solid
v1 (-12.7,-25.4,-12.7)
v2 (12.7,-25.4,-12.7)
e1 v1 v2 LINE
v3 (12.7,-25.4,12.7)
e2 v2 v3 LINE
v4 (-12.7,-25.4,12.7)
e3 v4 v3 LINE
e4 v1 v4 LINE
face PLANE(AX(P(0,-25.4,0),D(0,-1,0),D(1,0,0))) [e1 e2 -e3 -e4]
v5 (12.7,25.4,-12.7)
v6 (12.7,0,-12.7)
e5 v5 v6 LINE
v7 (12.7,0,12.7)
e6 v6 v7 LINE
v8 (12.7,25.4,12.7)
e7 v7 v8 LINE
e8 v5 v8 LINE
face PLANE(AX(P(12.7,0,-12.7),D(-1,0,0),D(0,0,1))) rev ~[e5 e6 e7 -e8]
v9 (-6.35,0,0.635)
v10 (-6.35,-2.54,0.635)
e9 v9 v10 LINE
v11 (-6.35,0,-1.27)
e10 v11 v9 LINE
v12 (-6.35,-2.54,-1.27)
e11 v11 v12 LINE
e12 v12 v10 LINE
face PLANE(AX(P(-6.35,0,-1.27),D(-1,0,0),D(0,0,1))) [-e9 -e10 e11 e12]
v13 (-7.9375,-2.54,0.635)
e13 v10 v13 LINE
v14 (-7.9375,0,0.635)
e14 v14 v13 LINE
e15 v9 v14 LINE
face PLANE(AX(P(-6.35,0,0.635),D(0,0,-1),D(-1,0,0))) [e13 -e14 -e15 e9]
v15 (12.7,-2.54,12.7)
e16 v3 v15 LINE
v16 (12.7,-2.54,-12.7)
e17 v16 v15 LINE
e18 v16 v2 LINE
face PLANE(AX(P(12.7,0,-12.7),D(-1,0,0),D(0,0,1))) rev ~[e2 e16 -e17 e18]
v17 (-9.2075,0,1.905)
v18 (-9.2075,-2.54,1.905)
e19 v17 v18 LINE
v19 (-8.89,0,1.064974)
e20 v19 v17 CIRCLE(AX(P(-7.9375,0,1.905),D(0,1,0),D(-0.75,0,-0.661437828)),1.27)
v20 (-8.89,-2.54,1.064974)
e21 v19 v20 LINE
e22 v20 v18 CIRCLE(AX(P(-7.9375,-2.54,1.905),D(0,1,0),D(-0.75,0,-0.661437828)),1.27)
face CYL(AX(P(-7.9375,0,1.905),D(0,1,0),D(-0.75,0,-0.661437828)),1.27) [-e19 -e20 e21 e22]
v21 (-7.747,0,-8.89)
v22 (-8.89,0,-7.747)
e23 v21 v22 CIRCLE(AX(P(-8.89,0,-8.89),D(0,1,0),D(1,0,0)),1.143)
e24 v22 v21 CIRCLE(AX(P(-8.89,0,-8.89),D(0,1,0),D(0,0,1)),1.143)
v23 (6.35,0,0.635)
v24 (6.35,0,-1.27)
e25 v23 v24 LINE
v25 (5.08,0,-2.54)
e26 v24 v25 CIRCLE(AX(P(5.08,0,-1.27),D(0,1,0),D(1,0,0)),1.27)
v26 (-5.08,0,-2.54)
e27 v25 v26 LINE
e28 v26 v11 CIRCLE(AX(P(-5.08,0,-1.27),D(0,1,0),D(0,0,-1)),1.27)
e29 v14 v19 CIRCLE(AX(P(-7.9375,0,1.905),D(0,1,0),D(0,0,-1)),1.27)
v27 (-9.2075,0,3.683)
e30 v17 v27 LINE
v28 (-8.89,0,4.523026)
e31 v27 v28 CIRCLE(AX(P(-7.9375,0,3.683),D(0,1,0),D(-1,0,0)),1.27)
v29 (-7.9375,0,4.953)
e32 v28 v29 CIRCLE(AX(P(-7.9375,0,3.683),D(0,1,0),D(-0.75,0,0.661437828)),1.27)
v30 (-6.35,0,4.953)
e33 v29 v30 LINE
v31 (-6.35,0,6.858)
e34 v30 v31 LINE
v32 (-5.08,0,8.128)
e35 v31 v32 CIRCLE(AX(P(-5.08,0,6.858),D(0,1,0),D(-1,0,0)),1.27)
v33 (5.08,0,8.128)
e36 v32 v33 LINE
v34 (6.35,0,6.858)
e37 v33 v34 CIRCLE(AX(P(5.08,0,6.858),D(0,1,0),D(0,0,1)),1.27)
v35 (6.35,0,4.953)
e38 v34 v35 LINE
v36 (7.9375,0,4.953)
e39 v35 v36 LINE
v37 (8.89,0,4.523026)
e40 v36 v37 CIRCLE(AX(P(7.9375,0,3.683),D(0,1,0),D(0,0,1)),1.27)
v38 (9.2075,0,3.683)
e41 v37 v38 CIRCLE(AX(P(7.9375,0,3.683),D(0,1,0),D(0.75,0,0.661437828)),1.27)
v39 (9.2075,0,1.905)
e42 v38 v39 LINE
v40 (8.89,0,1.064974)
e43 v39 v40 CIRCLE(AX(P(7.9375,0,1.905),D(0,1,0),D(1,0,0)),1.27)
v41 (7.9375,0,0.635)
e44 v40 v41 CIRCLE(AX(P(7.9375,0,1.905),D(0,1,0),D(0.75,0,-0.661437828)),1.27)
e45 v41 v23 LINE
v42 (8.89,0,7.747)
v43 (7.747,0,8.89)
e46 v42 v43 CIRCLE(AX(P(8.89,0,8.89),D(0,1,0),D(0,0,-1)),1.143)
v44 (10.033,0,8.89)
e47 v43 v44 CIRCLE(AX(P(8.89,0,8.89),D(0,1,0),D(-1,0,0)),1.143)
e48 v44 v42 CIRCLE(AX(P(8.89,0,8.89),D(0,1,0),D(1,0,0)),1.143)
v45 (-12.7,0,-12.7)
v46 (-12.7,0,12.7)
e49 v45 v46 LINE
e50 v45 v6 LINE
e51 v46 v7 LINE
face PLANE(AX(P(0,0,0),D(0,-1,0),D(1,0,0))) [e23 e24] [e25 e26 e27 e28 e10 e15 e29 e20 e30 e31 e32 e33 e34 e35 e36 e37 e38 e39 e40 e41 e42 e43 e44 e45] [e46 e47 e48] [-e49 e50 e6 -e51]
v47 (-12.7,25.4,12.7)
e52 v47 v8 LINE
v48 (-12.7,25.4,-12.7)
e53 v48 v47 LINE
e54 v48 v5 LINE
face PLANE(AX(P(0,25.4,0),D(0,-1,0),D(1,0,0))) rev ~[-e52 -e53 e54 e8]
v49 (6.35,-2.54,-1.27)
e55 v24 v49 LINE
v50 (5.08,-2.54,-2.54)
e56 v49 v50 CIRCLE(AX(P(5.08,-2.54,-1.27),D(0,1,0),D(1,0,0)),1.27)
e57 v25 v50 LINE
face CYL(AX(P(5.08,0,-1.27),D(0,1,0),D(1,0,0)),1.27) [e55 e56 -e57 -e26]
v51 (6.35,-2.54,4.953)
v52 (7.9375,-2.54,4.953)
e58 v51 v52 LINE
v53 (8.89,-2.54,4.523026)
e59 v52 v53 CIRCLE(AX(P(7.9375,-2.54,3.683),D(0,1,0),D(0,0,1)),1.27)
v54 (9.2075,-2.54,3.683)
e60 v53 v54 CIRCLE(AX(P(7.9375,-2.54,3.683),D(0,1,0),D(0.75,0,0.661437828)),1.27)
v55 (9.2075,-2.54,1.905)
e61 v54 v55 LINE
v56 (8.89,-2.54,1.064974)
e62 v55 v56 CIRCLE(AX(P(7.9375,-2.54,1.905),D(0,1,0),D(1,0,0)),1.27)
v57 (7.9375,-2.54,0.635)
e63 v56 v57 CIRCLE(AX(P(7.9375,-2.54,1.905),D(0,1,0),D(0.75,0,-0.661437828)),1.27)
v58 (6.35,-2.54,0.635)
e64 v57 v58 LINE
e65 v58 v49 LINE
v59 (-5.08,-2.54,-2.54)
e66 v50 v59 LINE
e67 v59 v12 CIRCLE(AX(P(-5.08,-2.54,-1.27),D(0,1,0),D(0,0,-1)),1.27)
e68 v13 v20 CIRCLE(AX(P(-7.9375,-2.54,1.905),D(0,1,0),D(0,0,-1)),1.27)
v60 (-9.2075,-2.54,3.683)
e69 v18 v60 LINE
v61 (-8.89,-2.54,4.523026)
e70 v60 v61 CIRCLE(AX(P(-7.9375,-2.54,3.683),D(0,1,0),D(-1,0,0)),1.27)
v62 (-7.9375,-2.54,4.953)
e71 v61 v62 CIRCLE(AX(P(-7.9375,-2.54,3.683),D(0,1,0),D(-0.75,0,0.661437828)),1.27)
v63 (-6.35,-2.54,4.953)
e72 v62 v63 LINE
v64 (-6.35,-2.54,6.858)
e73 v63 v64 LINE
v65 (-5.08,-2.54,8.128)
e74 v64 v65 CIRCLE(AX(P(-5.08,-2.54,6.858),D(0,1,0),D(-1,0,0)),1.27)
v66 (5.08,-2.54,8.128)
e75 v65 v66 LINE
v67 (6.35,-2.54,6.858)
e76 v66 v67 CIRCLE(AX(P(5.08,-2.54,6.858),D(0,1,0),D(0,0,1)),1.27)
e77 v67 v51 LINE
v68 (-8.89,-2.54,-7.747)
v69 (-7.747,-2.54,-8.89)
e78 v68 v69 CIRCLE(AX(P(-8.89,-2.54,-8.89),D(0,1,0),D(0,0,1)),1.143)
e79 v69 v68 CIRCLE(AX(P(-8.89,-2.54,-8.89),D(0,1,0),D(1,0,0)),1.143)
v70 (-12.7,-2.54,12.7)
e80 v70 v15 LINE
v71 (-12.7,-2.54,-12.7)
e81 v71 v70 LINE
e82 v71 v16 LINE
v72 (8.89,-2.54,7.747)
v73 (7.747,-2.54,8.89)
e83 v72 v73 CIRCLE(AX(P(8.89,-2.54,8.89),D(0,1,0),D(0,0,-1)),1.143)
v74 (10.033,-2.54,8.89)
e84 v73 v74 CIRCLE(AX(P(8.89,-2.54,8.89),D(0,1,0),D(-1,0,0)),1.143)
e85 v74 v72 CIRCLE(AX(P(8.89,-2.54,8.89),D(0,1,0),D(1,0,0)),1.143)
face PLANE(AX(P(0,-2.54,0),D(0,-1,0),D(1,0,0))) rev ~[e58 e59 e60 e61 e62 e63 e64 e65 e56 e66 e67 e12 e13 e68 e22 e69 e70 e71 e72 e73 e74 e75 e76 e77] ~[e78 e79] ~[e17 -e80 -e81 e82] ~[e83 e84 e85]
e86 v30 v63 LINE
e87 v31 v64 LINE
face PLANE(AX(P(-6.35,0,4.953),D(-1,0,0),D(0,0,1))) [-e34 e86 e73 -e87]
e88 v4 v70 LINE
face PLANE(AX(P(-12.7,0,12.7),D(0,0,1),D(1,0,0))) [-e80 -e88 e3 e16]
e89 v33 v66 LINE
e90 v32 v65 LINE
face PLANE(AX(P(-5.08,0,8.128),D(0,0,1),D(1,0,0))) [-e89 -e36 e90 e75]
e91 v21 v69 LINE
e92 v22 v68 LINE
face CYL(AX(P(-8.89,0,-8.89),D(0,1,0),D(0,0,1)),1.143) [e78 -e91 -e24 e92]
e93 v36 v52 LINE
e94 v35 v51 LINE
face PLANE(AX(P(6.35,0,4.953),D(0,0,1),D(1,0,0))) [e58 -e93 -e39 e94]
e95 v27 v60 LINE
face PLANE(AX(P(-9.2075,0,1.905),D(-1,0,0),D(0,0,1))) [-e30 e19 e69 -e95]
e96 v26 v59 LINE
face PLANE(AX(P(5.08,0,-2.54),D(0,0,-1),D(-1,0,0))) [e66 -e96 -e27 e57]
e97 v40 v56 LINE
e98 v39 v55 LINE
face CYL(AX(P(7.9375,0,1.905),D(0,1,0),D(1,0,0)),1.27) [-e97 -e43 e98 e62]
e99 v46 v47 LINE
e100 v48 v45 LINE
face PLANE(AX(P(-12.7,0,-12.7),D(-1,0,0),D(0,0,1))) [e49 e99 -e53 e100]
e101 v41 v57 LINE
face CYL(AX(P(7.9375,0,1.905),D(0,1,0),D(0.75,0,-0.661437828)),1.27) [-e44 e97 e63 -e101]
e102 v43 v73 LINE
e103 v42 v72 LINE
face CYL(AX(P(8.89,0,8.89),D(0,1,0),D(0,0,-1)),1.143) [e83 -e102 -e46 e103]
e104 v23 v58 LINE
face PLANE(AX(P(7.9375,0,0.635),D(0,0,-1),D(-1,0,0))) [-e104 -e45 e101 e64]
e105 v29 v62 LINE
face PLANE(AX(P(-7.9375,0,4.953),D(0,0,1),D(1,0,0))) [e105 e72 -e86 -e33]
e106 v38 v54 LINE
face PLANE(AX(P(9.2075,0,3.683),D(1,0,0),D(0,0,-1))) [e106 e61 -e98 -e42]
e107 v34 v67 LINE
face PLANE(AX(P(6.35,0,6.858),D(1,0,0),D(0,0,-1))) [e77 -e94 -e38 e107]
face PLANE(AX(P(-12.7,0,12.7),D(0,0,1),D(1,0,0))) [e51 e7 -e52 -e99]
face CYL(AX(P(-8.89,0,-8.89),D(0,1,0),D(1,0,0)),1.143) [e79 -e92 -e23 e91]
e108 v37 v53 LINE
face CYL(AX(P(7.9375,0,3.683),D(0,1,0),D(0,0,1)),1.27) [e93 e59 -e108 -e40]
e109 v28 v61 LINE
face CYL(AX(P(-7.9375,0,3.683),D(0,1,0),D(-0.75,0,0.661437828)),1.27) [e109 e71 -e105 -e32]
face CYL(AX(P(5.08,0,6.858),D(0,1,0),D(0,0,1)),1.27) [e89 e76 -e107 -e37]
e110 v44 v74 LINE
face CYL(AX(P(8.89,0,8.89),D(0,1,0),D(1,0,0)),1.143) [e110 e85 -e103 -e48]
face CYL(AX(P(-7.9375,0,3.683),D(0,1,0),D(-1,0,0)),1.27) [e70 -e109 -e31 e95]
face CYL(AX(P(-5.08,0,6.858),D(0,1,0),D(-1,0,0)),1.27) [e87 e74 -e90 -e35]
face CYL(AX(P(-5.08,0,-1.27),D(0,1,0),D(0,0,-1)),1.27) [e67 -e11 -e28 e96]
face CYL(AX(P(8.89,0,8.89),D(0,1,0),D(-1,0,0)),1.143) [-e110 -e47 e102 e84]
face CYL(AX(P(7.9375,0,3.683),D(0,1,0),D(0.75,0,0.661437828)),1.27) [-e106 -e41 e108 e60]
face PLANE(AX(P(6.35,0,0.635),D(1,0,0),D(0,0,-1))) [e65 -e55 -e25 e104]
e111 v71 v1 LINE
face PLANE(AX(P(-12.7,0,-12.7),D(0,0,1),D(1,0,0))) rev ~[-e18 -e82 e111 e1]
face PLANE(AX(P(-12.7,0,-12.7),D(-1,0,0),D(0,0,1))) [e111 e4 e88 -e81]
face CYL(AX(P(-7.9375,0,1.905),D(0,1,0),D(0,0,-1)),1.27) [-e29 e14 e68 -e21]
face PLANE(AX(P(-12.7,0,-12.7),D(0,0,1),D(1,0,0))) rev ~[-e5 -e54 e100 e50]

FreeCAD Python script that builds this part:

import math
import FreeCAD as App
import Part
import Sketcher

V = App.Vector
Q = App.Units.Quantity

doc = App.newDocument("Part")
params = doc.addObject("Spreadsheet::Sheet", "Params")
for row, (alias, value) in enumerate([
    ("sketch1_width", "1 in"),
    ("pad1_length", "1 in"),
    ("pad1_length2", "1 in"),
    ("sketch2_width", "1 in"),
    ("sketch2_radius", "0.05 in"),
    ("sketch2_width2", "0.4 in"),
    ("sketch2_radius2", "0.045 in"),
    ("sketch2_height", "0.07 in"),
    ("pocket1_length", "0.1 in"),
], start=1):
    params.set(f"A{row}", alias)
    params.set(f"B{row}", "=" + value)
    params.setAlias(f"B{row}", alias)

body = doc.addObject("PartDesign::Body", "Body")

sketch1 = body.newObject("Sketcher::SketchObject", "Sketch")
sketch1.AttachmentSupport = (doc.getObject("XZ_Plane"), [""])
sketch1.MapMode = "FlatFace"
sketch1.addGeometry([
    Part.LineSegment(V(-13, 13, 0), V(-13, -13, 0)),
    Part.LineSegment(V(-13, -13, 0), V(13, -13, 0)),
    Part.LineSegment(V(13, -13, 0), V(13, 13, 0)),
    Part.LineSegment(V(13, 13, 0), V(-13, 13, 0)),
], False)
sketch1.addConstraint([
    Sketcher.Constraint("Coincident", 0, 2, 1, 1),
    Sketcher.Constraint("Coincident", 1, 2, 2, 1),
    Sketcher.Constraint("Coincident", 2, 2, 3, 1),
    Sketcher.Constraint("Coincident", 3, 2, 0, 1),
    Sketcher.Constraint("Vertical", 0),
    Sketcher.Constraint("Horizontal", 1),
    Sketcher.Constraint("Vertical", 2),
    Sketcher.Constraint("Horizontal", 3),
    Sketcher.Constraint("Symmetric", 0, 2, 2, 2, -1, 1),
    Sketcher.Constraint("Equal", 3, 0),
    Sketcher.Constraint("DistanceX", 1, 1, 1, 2, Q("1 in")),
])
sketch1.setExpression("Constraints[10]", "Params.sketch1_width")
pad1 = body.newObject("PartDesign::Pad", "Pad")
pad1.Profile = sketch1
pad1.Type = "TwoLengths"
pad1.setExpression("Length", "Params.pad1_length")
pad1.setExpression("Length2", "Params.pad1_length2")
pad1.Reversed = True

sketch2 = body.newObject("Sketcher::SketchObject", "Sketch001")
sketch2.AttachmentSupport = (doc.getObject("XZ_Plane"), [""])
sketch2.MapMode = "FlatFace"
sketch2.addGeometry([
    Part.LineSegment(V(-12.7, 12.7, 0), V(-12.7, -12.7, 0)),
    Part.LineSegment(V(-12.7, -12.7, 0), V(12.7, -12.7, 0)),
    Part.LineSegment(V(12.7, -12.7, 0), V(12.7, 12.7, 0)),
    Part.LineSegment(V(12.7, 12.7, 0), V(-12.7, 12.7, 0)),
    Part.ArcOfCircle(Part.Circle(V(-7.9, 3.7, 0), V(0, 0, 1), 1.3), math.radians(139), math.radians(180)),
    Part.ArcOfCircle(Part.Circle(V(-7.9, 3.7, 0), V(0, 0, 1), 1.3), math.radians(90), math.radians(139)),
    Part.LineSegment(V(-7.9, 5, 0), V(-6.3, 5, 0)),
    Part.LineSegment(V(-6.3, 5, 0), V(-6.3, 6.9, 0)),
    Part.ArcOfCircle(Part.Circle(V(-5.1, 6.9, 0), V(0, 0, 1), 1.3), math.radians(90), math.radians(180)),
    Part.LineSegment(V(-5.1, 8.1, 0), V(5.1, 8.1, 0)),
    Part.ArcOfCircle(Part.Circle(V(5.1, 6.9, 0), V(0, 0, 1), 1.3), math.radians(0), math.radians(90)),
    Part.LineSegment(V(6.3, 6.9, 0), V(6.3, 5, 0)),
    Part.LineSegment(V(6.3, 5, 0), V(7.9, 5, 0)),
    Part.ArcOfCircle(Part.Circle(V(7.9, 3.7, 0), V(0, 0, 1), 1.3), math.radians(41), math.radians(90)),
    Part.ArcOfCircle(Part.Circle(V(7.9, 3.7, 0), V(0, 0, 1), 1.3), math.radians(0), math.radians(41)),
    Part.LineSegment(V(9.2, 3.7, 0), V(9.2, 1.9, 0)),
    Part.ArcOfCircle(Part.Circle(V(7.9, 1.9, 0), V(0, 0, 1), 1.3), math.radians(-41), math.radians(0)),
    Part.ArcOfCircle(Part.Circle(V(7.9, 1.9, 0), V(0, 0, 1), 1.3), math.radians(-90), math.radians(-41)),
    Part.LineSegment(V(7.9, 0.6, 0), V(6.3, 0.6, 0)),
    Part.LineSegment(V(6.3, 0.6, 0), V(6.3, -1.3, 0)),
    Part.ArcOfCircle(Part.Circle(V(5.1, -1.3, 0), V(0, 0, 1), 1.3), math.radians(-90), math.radians(0)),
    Part.LineSegment(V(5.1, -2.5, 0), V(-5.1, -2.5, 0)),
    Part.ArcOfCircle(Part.Circle(V(-5.1, -1.3, 0), V(0, 0, 1), 1.3), math.radians(180), math.radians(270)),
    Part.LineSegment(V(-6.3, -1.3, 0), V(-6.3, 0.6, 0)),
    Part.LineSegment(V(-6.3, 0.6, 0), V(-7.9, 0.6, 0)),
    Part.ArcOfCircle(Part.Circle(V(-7.9, 1.9, 0), V(0, 0, 1), 1.3), math.radians(-139), math.radians(-90)),
    Part.ArcOfCircle(Part.Circle(V(-7.9, 1.9, 0), V(0, 0, 1), 1.3), math.radians(180), math.radians(221)),
    Part.LineSegment(V(-9.2, 1.9, 0), V(-9.2, 3.7, 0)),
    Part.ArcOfCircle(Part.Circle(V(-8.9, -8.9, 0), V(0, 0, 1), 1.1), math.radians(90), math.radians(360)),
    Part.ArcOfCircle(Part.Circle(V(-8.9, -8.9, 0), V(0, 0, 1), 1.1), math.radians(0), math.radians(90)),
    Part.ArcOfCircle(Part.Circle(V(8.9, 8.9, 0), V(0, 0, 1), 1.1), math.radians(-90), math.radians(0)),
    Part.ArcOfCircle(Part.Circle(V(8.9, 8.9, 0), V(0, 0, 1), 1.1), math.radians(180), math.radians(270)),
    Part.ArcOfCircle(Part.Circle(V(8.9, 8.9, 0), V(0, 0, 1), 1.1), math.radians(0), math.radians(180)),
], False)
sketch2.addConstraint([
    Sketcher.Constraint("Coincident", 0, 2, 1, 1),
    Sketcher.Constraint("Coincident", 1, 2, 2, 1),
    Sketcher.Constraint("Coincident", 2, 2, 3, 1),
    Sketcher.Constraint("Coincident", 3, 2, 0, 1),
    Sketcher.Constraint("Tangent", 4, 1, 5, 2),
    Sketcher.Constraint("Tangent", 5, 1, 6, 1),
    Sketcher.Constraint("Coincident", 6, 2, 7, 1),
    Sketcher.Constraint("Tangent", 7, 2, 8, 2),
    Sketcher.Constraint("Tangent", 8, 1, 9, 1),
    Sketcher.Constraint("Tangent", 9, 2, 10, 2),
    Sketcher.Constraint("Tangent", 10, 1, 11, 1),
    Sketcher.Constraint("Coincident", 11, 2, 12, 1),
    Sketcher.Constraint("Tangent", 12, 2, 13, 2),
    Sketcher.Constraint("Tangent", 13, 1, 14, 2),
    Sketcher.Constraint("Tangent", 14, 1, 15, 1),
    Sketcher.Constraint("Tangent", 15, 2, 16, 2),
    Sketcher.Constraint("Tangent", 16, 1, 17, 2),
    Sketcher.Constraint("Tangent", 17, 1, 18, 1),
    Sketcher.Constraint("Coincident", 18, 2, 19, 1),
    Sketcher.Constraint("Tangent", 19, 2, 20, 2),
    Sketcher.Constraint("Tangent", 20, 1, 21, 1),
    Sketcher.Constraint("Tangent", 21, 2, 22, 2),
    Sketcher.Constraint("Tangent", 22, 1, 23, 1),
    Sketcher.Constraint("Coincident", 23, 2, 24, 1),
    Sketcher.Constraint("Tangent", 24, 2, 25, 2),
    Sketcher.Constraint("Tangent", 25, 1, 26, 2),
    Sketcher.Constraint("Tangent", 26, 1, 27, 1),
    Sketcher.Constraint("Tangent", 27, 2, 4, 2),
    Sketcher.Constraint("Tangent", 28, 1, 29, 2),
    Sketcher.Constraint("Coincident", 29, 1, 28, 2),
    Sketcher.Constraint("Tangent", 30, 1, 31, 2),
    Sketcher.Constraint("Tangent", 31, 1, 32, 2),
    Sketcher.Constraint("Tangent", 32, 1, 30, 2),
    Sketcher.Constraint("Vertical", 0),
    Sketcher.Constraint("Horizontal", 1),
    Sketcher.Constraint("Vertical", 2),
    Sketcher.Constraint("Horizontal", 3),
    Sketcher.Constraint("Horizontal", 6),
    Sketcher.Constraint("Vertical", 7),
    Sketcher.Constraint("Horizontal", 9),
    Sketcher.Constraint("Vertical", 11),
    Sketcher.Constraint("Horizontal", 12),
    Sketcher.Constraint("Vertical", 15),
    Sketcher.Constraint("Horizontal", 18),
    Sketcher.Constraint("Vertical", 19),
    Sketcher.Constraint("Horizontal", 21),
    Sketcher.Constraint("Vertical", 23),
    Sketcher.Constraint("Horizontal", 24),
    Sketcher.Constraint("Vertical", 27),
    Sketcher.Constraint("Equal", 4, 5),
    Sketcher.Constraint("Equal", 5, 8),
    Sketcher.Constraint("Equal", 8, 10),
    Sketcher.Constraint("Equal", 10, 13),
    Sketcher.Constraint("Equal", 13, 14),
    Sketcher.Constraint("Equal", 14, 16),
    Sketcher.Constraint("Equal", 16, 17),
    Sketcher.Constraint("Equal", 17, 20),
    Sketcher.Constraint("Equal", 20, 22),
    Sketcher.Constraint("Equal", 22, 25),
    Sketcher.Constraint("Equal", 25, 26),
    Sketcher.Constraint("Equal", 29, 30),
    Sketcher.Constraint("Symmetric", 28, 3, 30, 3, -1, 1),
    Sketcher.Constraint("Symmetric", 0, 2, 2, 2, -1, 1),
    Sketcher.Constraint("Symmetric", 4, 3, 13, 3, -2),
    Sketcher.Constraint("Symmetric", 18, 2, 23, 2, -2),
    Sketcher.Constraint("Horizontal", 4, 1, 13, 1),
    Sketcher.Constraint("Horizontal", 16, 1, 25, 1),
    Sketcher.Constraint("Horizontal", 28, 3, 29, 1),
    Sketcher.Constraint("Horizontal", 32, 3, 31, 1),
    Sketcher.Constraint("Horizontal", 31, 1, 32, 1),
    Sketcher.Constraint("Vertical", 10, 3, 20, 3),
    Sketcher.Constraint("Vertical", 8, 3, 22, 3),
    Sketcher.Constraint("Vertical", 29, 3, 4, 1),
    Sketcher.Constraint("Vertical", 13, 1, 16, 1),
    Sketcher.Constraint("Vertical", 25, 1, 28, 1),
    Sketcher.Constraint("Vertical", 16, 1, 30, 1),
    Sketcher.Constraint("Equal", 3, 0),
    Sketcher.Constraint("Equal", 11, 19),
    Sketcher.Constraint("DistanceX", 1, 1, 1, 2, Q("1 in")),
    Sketcher.Constraint("Radius", 4, Q("0.05 in")),
    Sketcher.Constraint("DistanceX", 9, 1, 9, 2, Q("0.4 in")),
    Sketcher.Constraint("Radius", 28, Q("0.045 in")),
    Sketcher.Constraint("DistanceY", 15, 2, 15, 1, Q("0.07 in")),
    Sketcher.Constraint("DistanceY", 20, 1, -1, 1, Q("0.1 in")),
    Sketcher.Constraint("DistanceY", 28, 3, 22, 3, Q("0.3 in")),
    Sketcher.Constraint("DistanceX", 4, 1, 6, 2, Q("0.1 in")),
    Sketcher.Constraint("DistanceX", 6, 1, 6, 2, Q("0.0625 in")),
    Sketcher.Constraint("DistanceY", 7, 1, 7, 2, Q("0.075 in")),
])
sketch2.setExpression("Constraints[78]", "Params.sketch2_width")
sketch2.setExpression("Constraints[79]", "Params.sketch2_radius")
sketch2.setExpression("Constraints[80]", "Params.sketch2_width2")
sketch2.setExpression("Constraints[81]", "Params.sketch2_radius2")
sketch2.setExpression("Constraints[82]", "Params.sketch2_height")
pocket1 = body.newObject("PartDesign::Pocket", "Pocket")
pocket1.Profile = sketch2
pocket1.setExpression("Length", "Params.pocket1_length")
pocket1.Reversed = True

doc.recompute()
